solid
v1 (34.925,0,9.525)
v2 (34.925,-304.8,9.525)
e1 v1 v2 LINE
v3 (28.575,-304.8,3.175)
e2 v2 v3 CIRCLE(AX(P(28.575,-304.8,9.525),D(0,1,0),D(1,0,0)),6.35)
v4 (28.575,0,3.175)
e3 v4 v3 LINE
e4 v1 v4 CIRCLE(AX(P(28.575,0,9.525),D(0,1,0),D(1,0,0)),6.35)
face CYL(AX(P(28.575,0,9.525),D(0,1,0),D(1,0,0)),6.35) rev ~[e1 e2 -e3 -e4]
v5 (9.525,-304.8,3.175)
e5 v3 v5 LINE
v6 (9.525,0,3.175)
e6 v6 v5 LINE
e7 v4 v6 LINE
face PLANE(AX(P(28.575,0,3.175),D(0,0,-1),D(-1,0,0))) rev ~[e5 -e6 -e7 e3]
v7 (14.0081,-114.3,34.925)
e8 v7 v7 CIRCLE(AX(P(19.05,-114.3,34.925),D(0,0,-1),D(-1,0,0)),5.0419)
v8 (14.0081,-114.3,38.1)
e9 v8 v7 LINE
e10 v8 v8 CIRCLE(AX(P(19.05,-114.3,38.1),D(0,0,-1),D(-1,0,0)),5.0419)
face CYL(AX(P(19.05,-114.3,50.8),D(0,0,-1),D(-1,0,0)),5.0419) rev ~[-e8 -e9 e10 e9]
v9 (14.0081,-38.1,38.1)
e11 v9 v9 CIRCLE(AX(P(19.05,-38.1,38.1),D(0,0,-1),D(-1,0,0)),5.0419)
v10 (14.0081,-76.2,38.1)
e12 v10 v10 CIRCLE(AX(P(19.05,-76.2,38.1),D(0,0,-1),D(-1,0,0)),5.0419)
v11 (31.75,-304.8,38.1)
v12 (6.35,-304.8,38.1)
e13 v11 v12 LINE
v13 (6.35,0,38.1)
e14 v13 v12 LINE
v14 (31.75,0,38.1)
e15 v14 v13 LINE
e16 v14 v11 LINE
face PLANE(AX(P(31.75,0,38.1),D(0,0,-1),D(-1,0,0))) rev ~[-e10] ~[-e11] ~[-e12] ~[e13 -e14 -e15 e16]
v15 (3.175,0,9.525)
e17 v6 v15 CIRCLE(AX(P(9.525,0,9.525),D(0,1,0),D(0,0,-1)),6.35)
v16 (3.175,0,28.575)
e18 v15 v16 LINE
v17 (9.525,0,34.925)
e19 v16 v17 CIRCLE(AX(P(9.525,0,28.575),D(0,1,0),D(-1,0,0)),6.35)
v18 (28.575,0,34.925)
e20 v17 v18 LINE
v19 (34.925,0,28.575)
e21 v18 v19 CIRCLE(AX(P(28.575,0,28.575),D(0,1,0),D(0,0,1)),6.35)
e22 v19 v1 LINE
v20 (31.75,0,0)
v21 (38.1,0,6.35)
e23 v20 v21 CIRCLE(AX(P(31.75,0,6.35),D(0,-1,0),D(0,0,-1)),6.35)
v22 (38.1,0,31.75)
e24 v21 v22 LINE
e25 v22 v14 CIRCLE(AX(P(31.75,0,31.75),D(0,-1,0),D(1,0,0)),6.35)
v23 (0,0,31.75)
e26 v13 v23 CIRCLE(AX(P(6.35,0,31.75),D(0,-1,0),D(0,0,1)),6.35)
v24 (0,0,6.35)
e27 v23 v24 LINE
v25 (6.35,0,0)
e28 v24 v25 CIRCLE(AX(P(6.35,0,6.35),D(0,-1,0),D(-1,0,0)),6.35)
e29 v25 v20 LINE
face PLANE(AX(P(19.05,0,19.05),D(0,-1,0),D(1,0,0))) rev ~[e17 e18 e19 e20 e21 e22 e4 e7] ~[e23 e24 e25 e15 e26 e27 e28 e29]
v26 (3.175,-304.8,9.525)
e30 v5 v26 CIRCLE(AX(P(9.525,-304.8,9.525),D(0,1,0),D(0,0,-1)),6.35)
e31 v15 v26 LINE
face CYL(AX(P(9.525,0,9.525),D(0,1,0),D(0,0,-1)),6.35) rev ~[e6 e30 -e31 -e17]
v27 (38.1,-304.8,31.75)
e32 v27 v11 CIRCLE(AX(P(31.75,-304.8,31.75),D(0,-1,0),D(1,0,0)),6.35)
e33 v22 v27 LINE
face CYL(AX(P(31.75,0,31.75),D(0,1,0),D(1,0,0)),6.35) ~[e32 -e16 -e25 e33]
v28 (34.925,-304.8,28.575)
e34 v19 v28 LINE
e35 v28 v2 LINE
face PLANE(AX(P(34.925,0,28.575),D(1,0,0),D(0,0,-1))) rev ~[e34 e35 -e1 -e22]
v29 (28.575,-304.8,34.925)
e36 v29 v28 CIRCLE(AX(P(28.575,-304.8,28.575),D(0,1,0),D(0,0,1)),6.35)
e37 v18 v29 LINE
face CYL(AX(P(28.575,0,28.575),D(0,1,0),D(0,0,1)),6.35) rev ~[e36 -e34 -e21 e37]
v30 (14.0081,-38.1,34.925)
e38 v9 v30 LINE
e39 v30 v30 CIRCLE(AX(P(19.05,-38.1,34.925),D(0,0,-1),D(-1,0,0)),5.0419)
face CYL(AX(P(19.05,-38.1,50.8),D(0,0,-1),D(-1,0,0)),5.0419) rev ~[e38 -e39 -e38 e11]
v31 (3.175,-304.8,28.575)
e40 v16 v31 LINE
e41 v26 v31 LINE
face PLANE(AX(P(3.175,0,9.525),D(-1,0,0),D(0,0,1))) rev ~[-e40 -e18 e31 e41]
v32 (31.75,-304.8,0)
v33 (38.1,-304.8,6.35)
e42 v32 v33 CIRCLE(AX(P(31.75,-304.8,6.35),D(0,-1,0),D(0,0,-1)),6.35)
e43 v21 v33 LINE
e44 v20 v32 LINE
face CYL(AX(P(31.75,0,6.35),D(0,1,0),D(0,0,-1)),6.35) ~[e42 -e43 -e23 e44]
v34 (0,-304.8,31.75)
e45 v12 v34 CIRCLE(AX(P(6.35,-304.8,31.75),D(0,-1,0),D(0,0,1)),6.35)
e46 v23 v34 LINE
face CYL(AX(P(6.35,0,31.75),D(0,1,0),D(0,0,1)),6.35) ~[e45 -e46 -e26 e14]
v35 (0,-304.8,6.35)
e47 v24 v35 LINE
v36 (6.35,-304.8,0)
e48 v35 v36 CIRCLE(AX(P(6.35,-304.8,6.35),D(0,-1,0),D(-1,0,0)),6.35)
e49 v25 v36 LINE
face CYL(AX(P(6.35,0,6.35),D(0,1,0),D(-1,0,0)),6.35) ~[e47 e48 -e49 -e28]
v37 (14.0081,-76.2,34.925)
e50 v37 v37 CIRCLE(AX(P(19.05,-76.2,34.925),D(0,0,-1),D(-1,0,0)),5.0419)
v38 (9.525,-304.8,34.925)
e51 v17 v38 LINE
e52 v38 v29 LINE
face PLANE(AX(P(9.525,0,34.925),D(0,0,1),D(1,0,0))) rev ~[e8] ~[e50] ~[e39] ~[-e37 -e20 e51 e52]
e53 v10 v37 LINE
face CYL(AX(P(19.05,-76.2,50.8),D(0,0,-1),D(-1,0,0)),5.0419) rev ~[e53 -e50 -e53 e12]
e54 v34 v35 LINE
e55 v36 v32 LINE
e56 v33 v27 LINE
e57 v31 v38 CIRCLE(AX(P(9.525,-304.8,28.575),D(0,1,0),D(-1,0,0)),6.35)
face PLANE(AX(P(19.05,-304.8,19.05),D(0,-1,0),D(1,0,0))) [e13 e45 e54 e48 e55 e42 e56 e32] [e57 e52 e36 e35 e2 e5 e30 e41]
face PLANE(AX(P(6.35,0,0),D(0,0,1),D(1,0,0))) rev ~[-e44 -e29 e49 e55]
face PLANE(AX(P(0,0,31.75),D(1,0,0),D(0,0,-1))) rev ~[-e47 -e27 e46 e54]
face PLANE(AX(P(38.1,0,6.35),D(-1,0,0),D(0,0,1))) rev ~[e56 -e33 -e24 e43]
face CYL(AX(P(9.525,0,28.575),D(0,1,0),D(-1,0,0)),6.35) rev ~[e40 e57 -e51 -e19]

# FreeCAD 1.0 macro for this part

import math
import FreeCAD as App
import Part
import Sketcher

V = App.Vector
Q = App.Units.Quantity

doc = App.newDocument("Part")
body = doc.addObject("PartDesign::Body", "Body")

# Sketch on XZ plane
sketch1 = body.newObject("Sketcher::SketchObject", "Sketch")
sketch1.AttachmentSupport = (doc.getObject("XZ_Plane"), [""])
sketch1.MapMode = "FlatFace"
sketch1.addGeometry(Part.ArcOfCircle(Part.Circle(V(6, 6, 0), V(0, 0, 1), 6), math.radians(180), math.radians(270)), False)
sketch1.addGeometry(Part.LineSegment(V(6, 0, 0), V(32, 0, 0)), False)
sketch1.addGeometry(Part.ArcOfCircle(Part.Circle(V(32, 6, 0), V(0, 0, 1), 6), math.radians(-90), math.radians(0)), False)
sketch1.addGeometry(Part.LineSegment(V(38, 6, 0), V(38, 32, 0)), False)
sketch1.addGeometry(Part.ArcOfCircle(Part.Circle(V(32, 32, 0), V(0, 0, 1), 6), math.radians(0), math.radians(90)), False)
sketch1.addGeometry(Part.LineSegment(V(32, 38, 0), V(6, 38, 0)), False)
sketch1.addGeometry(Part.ArcOfCircle(Part.Circle(V(6, 32, 0), V(0, 0, 1), 6), math.radians(90), math.radians(180)), False)
sketch1.addGeometry(Part.LineSegment(V(0, 32, 0), V(0, 6, 0)), False)
sketch1.addGeometry(Part.ArcOfCircle(Part.Circle(V(29, 10, 0), V(0, 0, 1), 6), math.radians(-90), math.radians(0)), False)
sketch1.addGeometry(Part.LineSegment(V(29, 3, 0), V(10, 3, 0)), False)
sketch1.addGeometry(Part.ArcOfCircle(Part.Circle(V(10, 10, 0), V(0, 0, 1), 6), math.radians(180), math.radians(270)), False)
sketch1.addGeometry(Part.LineSegment(V(3, 10, 0), V(3, 29, 0)), False)
sketch1.addGeometry(Part.ArcOfCircle(Part.Circle(V(10, 29, 0), V(0, 0, 1), 6), math.radians(90), math.radians(180)), False)
sketch1.addGeometry(Part.LineSegment(V(10, 35, 0), V(29, 35, 0)), False)
sketch1.addGeometry(Part.ArcOfCircle(Part.Circle(V(29, 29, 0), V(0, 0, 1), 6), math.radians(0), math.radians(90)), False)
sketch1.addGeometry(Part.LineSegment(V(35, 29, 0), V(35, 10, 0)), False)
sketch1.addConstraint(Sketcher.Constraint("Tangent", 0, 2, 1, 1))
sketch1.addConstraint(Sketcher.Constraint("Tangent", 1, 2, 2, 1))
sketch1.addConstraint(Sketcher.Constraint("Tangent", 2, 2, 3, 1))
sketch1.addConstraint(Sketcher.Constraint("Tangent", 3, 2, 4, 1))
sketch1.addConstraint(Sketcher.Constraint("Tangent", 4, 2, 5, 1))
sketch1.addConstraint(Sketcher.Constraint("Tangent", 5, 2, 6, 1))
sketch1.addConstraint(Sketcher.Constraint("Tangent", 6, 2, 7, 1))
sketch1.addConstraint(Sketcher.Constraint("Tangent", 7, 2, 0, 1))
sketch1.addConstraint(Sketcher.Constraint("Tangent", 8, 1, 9, 1))
sketch1.addConstraint(Sketcher.Constraint("Tangent", 9, 2, 10, 2))
sketch1.addConstraint(Sketcher.Constraint("Tangent", 10, 1, 11, 1))
sketch1.addConstraint(Sketcher.Constraint("Tangent", 11, 2, 12, 2))
sketch1.addConstraint(Sketcher.Constraint("Tangent", 12, 1, 13, 1))
sketch1.addConstraint(Sketcher.Constraint("Tangent", 13, 2, 14, 2))
sketch1.addConstraint(Sketcher.Constraint("Tangent", 14, 1, 15, 1))
sketch1.addConstraint(Sketcher.Constraint("Tangent", 15, 2, 8, 2))
sketch1.addConstraint(Sketcher.Constraint("Horizontal", 1))
sketch1.addConstraint(Sketcher.Constraint("Vertical", 3))
sketch1.addConstraint(Sketcher.Constraint("Horizontal", 5))
sketch1.addConstraint(Sketcher.Constraint("Vertical", 7))
sketch1.addConstraint(Sketcher.Constraint("Horizontal", 9))
sketch1.addConstraint(Sketcher.Constraint("Vertical", 11))
sketch1.addConstraint(Sketcher.Constraint("Horizontal", 13))
sketch1.addConstraint(Sketcher.Constraint("Vertical", 15))
sketch1.addConstraint(Sketcher.Constraint("Equal", 0, 2))
sketch1.addConstraint(Sketcher.Constraint("Equal", 2, 4))
sketch1.addConstraint(Sketcher.Constraint("Equal", 4, 6))
sketch1.addConstraint(Sketcher.Constraint("Equal", 6, 8))
sketch1.addConstraint(Sketcher.Constraint("Equal", 8, 10))
sketch1.addConstraint(Sketcher.Constraint("Equal", 10, 12))
sketch1.addConstraint(Sketcher.Constraint("Equal", 12, 14))
sketch1.addConstraint(Sketcher.Constraint("PointOnObject", 0, 2, -1))
sketch1.addConstraint(Sketcher.Constraint("PointOnObject", 6, 2, -2))
sketch1.addConstraint(Sketcher.Constraint("Equal", 5, 3))
sketch1.addConstraint(Sketcher.Constraint("Equal", 13, 11))
sketch1.addConstraint(Sketcher.Constraint("DistanceX", 1, 1, 1, 2, Q("1 in")))
sketch1.addConstraint(Sketcher.Constraint("Radius", 0, Q("0.25 in")))
sketch1.addConstraint(Sketcher.Constraint("DistanceX", 9, 2, 9, 1, Q("0.75 in")))
sketch1.addConstraint(Sketcher.Constraint("DistanceX", -1, 1, 8, 3, Q("1.125 in")))
sketch1.addConstraint(Sketcher.Constraint("DistanceY", -1, 1, 8, 3, Q("0.375 in")))
pad1 = body.newObject("PartDesign::Pad", "Pad")
pad1.Profile = sketch1
pad1.Length = Q("12 in")

# Sketch on XY plane
sketch2 = body.newObject("Sketcher::SketchObject", "Sketch001")
sketch2.AttachmentSupport = (doc.getObject("XY_Plane"), [""])
sketch2.MapMode = "FlatFace"
sketch2.AttachmentOffset = App.Placement(V(0, 0, 1.5 * 25.4), App.Rotation())
sketch2.addGeometry(Part.Circle(V(19, -38, 0), V(0, 0, 1), 5), False)
sketch2.addGeometry(Part.Circle(V(19, -76, 0), V(0, 0, 1), 5), False)
sketch2.addGeometry(Part.Circle(V(19, -114, 0), V(0, 0, 1), 5), False)
sketch2.addConstraint(Sketcher.Constraint("Equal", 0, 1))
sketch2.addConstraint(Sketcher.Constraint("Equal", 1, 2))
sketch2.addConstraint(Sketcher.Constraint("Vertical", 0, 3, 1, 3))
sketch2.addConstraint(Sketcher.Constraint("Vertical", 1, 3, 2, 3))
sketch2.addConstraint(Sketcher.Constraint("Diameter", 0, Q("0.397 in")))
sketch2.addConstraint(Sketcher.Constraint("DistanceY", 1, 3, -1, 1, Q("3 in")))
sketch2.addConstraint(Sketcher.Constraint("DistanceY", 2, 3, 0, 3, Q("3 in")))
sketch2.addConstraint(Sketcher.Constraint("DistanceY", 0, 3, -1, 1, Q("1.5 in")))
sketch2.addConstraint(Sketcher.Constraint("DistanceX", -1, 1, 0, 3, Q("0.75 in")))
doc.recompute()
hole = body.newObject("PartDesign::Hole", "Hole")
hole.Profile = sketch2
hole.ThreadType = "None"
hole.Diameter = Q("0.397 in")
hole.DepthType = "Dimension"
hole.Depth = Q("0.5 in")
hole.DrillPoint = "Angled"
hole.DrillPointAngle = 118

doc.recompute()
